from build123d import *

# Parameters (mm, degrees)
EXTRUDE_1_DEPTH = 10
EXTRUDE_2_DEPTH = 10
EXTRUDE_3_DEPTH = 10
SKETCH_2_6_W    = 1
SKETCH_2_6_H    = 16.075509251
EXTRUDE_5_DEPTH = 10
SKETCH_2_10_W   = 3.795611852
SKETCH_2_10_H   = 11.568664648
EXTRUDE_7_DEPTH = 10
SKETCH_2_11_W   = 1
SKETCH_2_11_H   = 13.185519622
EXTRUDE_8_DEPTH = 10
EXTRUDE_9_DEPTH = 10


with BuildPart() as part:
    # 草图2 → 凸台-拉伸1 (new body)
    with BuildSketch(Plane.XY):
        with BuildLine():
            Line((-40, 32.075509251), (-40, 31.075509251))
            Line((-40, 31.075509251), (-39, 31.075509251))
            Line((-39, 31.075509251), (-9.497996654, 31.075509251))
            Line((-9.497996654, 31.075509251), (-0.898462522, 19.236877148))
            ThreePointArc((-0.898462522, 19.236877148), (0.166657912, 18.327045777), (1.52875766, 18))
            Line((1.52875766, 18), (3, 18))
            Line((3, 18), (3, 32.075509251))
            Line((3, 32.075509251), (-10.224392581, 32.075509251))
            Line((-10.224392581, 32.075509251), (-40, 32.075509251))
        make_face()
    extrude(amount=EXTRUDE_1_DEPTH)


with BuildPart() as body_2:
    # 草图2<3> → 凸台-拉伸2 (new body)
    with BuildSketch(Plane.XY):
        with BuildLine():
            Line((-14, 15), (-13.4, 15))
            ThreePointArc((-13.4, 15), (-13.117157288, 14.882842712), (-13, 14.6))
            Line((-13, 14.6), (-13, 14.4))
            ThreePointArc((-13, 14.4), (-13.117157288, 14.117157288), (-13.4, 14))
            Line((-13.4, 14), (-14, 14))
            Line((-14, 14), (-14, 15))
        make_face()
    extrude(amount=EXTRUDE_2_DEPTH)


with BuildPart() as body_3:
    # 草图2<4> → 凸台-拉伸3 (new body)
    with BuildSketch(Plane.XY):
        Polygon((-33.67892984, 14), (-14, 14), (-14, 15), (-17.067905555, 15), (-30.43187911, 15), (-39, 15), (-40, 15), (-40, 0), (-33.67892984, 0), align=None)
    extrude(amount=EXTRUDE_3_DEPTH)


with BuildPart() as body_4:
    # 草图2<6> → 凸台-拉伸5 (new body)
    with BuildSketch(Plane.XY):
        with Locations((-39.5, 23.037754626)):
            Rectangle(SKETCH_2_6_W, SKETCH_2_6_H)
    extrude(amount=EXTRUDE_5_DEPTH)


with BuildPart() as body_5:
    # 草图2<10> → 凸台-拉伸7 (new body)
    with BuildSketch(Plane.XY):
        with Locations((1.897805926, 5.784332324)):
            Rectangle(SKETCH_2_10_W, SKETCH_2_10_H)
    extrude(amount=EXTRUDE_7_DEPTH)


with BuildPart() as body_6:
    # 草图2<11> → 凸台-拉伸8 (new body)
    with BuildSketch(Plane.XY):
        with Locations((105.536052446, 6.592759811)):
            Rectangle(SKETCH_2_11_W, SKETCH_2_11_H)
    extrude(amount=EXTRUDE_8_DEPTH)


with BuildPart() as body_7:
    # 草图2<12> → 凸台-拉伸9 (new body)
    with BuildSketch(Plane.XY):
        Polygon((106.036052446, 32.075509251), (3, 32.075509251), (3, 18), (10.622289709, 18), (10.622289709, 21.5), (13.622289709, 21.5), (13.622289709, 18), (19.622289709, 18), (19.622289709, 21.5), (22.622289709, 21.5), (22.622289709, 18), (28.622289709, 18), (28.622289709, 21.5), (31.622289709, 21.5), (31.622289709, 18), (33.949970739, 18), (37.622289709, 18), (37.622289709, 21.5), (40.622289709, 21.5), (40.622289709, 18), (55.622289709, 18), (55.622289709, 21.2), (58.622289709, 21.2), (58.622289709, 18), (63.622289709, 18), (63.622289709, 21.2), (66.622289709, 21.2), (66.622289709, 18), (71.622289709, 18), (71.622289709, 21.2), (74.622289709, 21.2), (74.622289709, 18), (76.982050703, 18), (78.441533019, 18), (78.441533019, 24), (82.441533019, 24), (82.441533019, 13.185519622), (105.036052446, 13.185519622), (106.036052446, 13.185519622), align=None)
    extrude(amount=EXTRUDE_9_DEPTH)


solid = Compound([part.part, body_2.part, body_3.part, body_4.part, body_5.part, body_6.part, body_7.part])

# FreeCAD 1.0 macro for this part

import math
import FreeCAD as App
import Part
import Sketcher

V = App.Vector


def add_polygon(sketch, points):
    """Adds a closed chain of lines whose ends are joined by coincident constraints."""
    first, n = sketch.GeometryCount, len(points)
    for a, b in zip(points, points[1:] + points[:1]):
        sketch.addGeometry(Part.LineSegment(App.Vector(*a, 0), App.Vector(*b, 0)), False)
    for i in range(n):
        sketch.addConstraint(Sketcher.Constraint("Coincident", first + i, 2, first + (i + 1) % n, 1))

doc = App.newDocument("Part")
params = doc.addObject("Spreadsheet::Sheet", "Params")
for row, (alias, value) in enumerate([
    ("sketch1_radius", "3 mm"),
    ("sketch1_width", "43 mm"),
    ("sketch1_height", "1 mm"),
    ("pad1_length", "10 mm"),
    ("sketch2_radius", "0.4 mm"),
    ("sketch2_height", "1 mm"),
    ("sketch2_width", "0.6 mm"),
    ("pad2_length", "10 mm"),
    ("sketch3_width", "26 mm"),
    ("sketch3_height", "1 mm"),
    ("sketch3_height2", "15 mm"),
    ("pad3_length", "10 mm"),
    ("sketch4_width", "1 mm"),
    ("pad4_length", "10 mm"),
    ("pad5_length", "10 mm"),
    ("sketch6_width", "1 mm"),
    ("pad6_length", "10 mm"),
    ("sketch7_width", "3 mm"),
    ("sketch7_width2", "6 mm"),
    ("sketch7_width3", "15 mm"),
    ("sketch7_width4", "5 mm"),
    ("sketch7_width5", "4 mm"),
    ("pad7_length", "10 mm"),
], start=1):
    params.set(f"A{row}", alias)
    params.set(f"B{row}", "=" + value)
    params.setAlias(f"B{row}", alias)

body = doc.addObject("PartDesign::Body", "Body")

# Sketch on XY plane
sketch1 = body.newObject("Sketcher::SketchObject", "Sketch")
sketch1.AttachmentSupport = (doc.getObject("XY_Plane"), [""])
sketch1.MapMode = "FlatFace"
sketch1.addGeometry([
    Part.LineSegment(V(-40, 32.1, 0), V(-40, 31.1, 0)),  # 0
    Part.LineSegment(V(-40, 31.1, 0), V(-9.5, 31.1, 0)),  # 1
    Part.LineSegment(V(-9.5, 31.1, 0), V(-0.9, 19.2, 0)),  # 2
    Part.ArcOfCircle(Part.Circle(V(1.5, 21, 0), V(0, 0, 1), 3), math.radians(-144), math.radians(-90)),  # 3
    Part.LineSegment(V(1.5, 18, 0), V(3, 18, 0)),  # 4
    Part.LineSegment(V(3, 18, 0), V(3, 32.1, 0)),  # 5
    Part.LineSegment(V(3, 32.1, 0), V(-40, 32.1, 0)),  # 6
], False)
sketch1.addConstraint([
    Sketcher.Constraint("Coincident", 0, 2, 1, 1),
    Sketcher.Constraint("Coincident", 1, 2, 2, 1),
    Sketcher.Constraint("Tangent", 2, 2, 3, 1),
    Sketcher.Constraint("Tangent", 3, 2, 4, 1),
    Sketcher.Constraint("Coincident", 4, 2, 5, 1),
    Sketcher.Constraint("Coincident", 5, 2, 6, 1),
    Sketcher.Constraint("Coincident", 6, 2, 0, 1),
    Sketcher.Constraint("Vertical", 0),
    Sketcher.Constraint("Horizontal", 1),
    Sketcher.Constraint("Horizontal", 4),
    Sketcher.Constraint("Vertical", 5),
    Sketcher.Constraint("Horizontal", 6),
    Sketcher.Constraint("Radius", 3, 3.0),
    Sketcher.Constraint("DistanceX", 6, 2, 6, 1, 43.0),
    Sketcher.Constraint("DistanceY", 0, 2, 0, 1, 1.0),
    Sketcher.Constraint("DistanceY", -1, 1, 3, 3, 21.0),
    Sketcher.Constraint("DistanceX", 0, 2, -1, 1, 40.0),
    Sketcher.Constraint("DistanceY", 5, 1, 5, 2, 14.075509),
    Sketcher.Constraint("DistanceX", 1, 1, 1, 2, 30.502003),
    Sketcher.Constraint("DistanceX", 4, 1, 4, 2, 1.471242),
])
sketch1.setExpression("Constraints[12]", "Params.sketch1_radius")
sketch1.setExpression("Constraints[13]", "Params.sketch1_width")
sketch1.setExpression("Constraints[14]", "Params.sketch1_height")
pad1 = body.newObject("PartDesign::Pad", "Pad")
pad1.Profile = sketch1
pad1.setExpression("Length", "Params.pad1_length")
body2 = doc.addObject("PartDesign::Body", "Body001")

# Sketch on XY plane
sketch2 = body2.newObject("Sketcher::SketchObject", "Sketch001")
sketch2.AttachmentSupport = (doc.getObject("XY_Plane001"), [""])
sketch2.MapMode = "FlatFace"
sketch2.addGeometry([
    Part.LineSegment(V(-13.4, 15, 0), V(-14, 15, 0)),  # 0
    Part.LineSegment(V(-14, 15, 0), V(-14, 14, 0)),  # 1
    Part.LineSegment(V(-14, 14, 0), V(-13.4, 14, 0)),  # 2
    Part.ArcOfCircle(Part.Circle(V(-13.4, 14.4, 0), V(0, 0, 1), 0.4), math.radians(-90), math.radians(0)),  # 3
    Part.LineSegment(V(-13, 14.4, 0), V(-13, 14.6, 0)),  # 4
    Part.ArcOfCircle(Part.Circle(V(-13.4, 14.6, 0), V(0, 0, 1), 0.4), math.radians(0), math.radians(90)),  # 5
], False)
sketch2.addConstraint([
    Sketcher.Constraint("Coincident", 0, 2, 1, 1),
    Sketcher.Constraint("Coincident", 1, 2, 2, 1),
    Sketcher.Constraint("Tangent", 2, 2, 3, 1),
    Sketcher.Constraint("Tangent", 3, 2, 4, 1),
    Sketcher.Constraint("Tangent", 4, 2, 5, 1),
    Sketcher.Constraint("Tangent", 5, 2, 0, 1),
    Sketcher.Constraint("Horizontal", 0),
    Sketcher.Constraint("Vertical", 1),
    Sketcher.Constraint("Horizontal", 2),
    Sketcher.Constraint("Vertical", 4),
    Sketcher.Constraint("Equal", 3, 5),
    Sketcher.Constraint("Radius", 3, 0.4),
    Sketcher.Constraint("DistanceY", 1, 2, 1, 1, 1.0),
    Sketcher.Constraint("DistanceX", 0, 2, 0, 1, 0.6),
    Sketcher.Constraint("DistanceX", 0, 2, -1, 1, 14.0),
    Sketcher.Constraint("DistanceY", -1, 1, 0, 2, 15.0),
])
sketch2.setExpression("Constraints[11]", "Params.sketch2_radius")
sketch2.setExpression("Constraints[12]", "Params.sketch2_height")
sketch2.setExpression("Constraints[13]", "Params.sketch2_width")
pad2 = body2.newObject("PartDesign::Pad", "Pad001")
pad2.Profile = sketch2
pad2.setExpression("Length", "Params.pad2_length")
body3 = doc.addObject("PartDesign::Body", "Body002")

# Sketch on XY plane
sketch3 = body3.newObject("Sketcher::SketchObject", "Sketch002")
sketch3.AttachmentSupport = (doc.getObject("XY_Plane002"), [""])
sketch3.MapMode = "FlatFace"
add_polygon(sketch3, [(-33.7, 14), (-14, 14), (-14, 15), (-40, 15), (-40, 0), (-33.7, 0)])  # lines 0-5
sketch3.addConstraint([
    Sketcher.Constraint("Horizontal", 0),
    Sketcher.Constraint("Vertical", 1),
    Sketcher.Constraint("Horizontal", 2),
    Sketcher.Constraint("Vertical", 3),
    Sketcher.Constraint("Horizontal", 4),
    Sketcher.Constraint("Vertical", 5),
    Sketcher.Constraint("PointOnObject", 3, 2, -1),
    Sketcher.Constraint("DistanceX", 2, 2, 2, 1, 26.0),
    Sketcher.Constraint("DistanceY", 1, 1, 1, 2, 1.0),
    Sketcher.Constraint("DistanceY", 3, 2, 3, 1, 15.0),
    Sketcher.Constraint("DistanceX", 0, 2, -1, 1, 14.0),
    Sketcher.Constraint("DistanceX", 0, 1, 0, 2, 19.67893),
])
sketch3.setExpression("Constraints[13]", "Params.sketch3_width")
sketch3.setExpression("Constraints[14]", "Params.sketch3_height")
sketch3.setExpression("Constraints[15]", "Params.sketch3_height2")
pad3 = body3.newObject("PartDesign::Pad", "Pad002")
pad3.Profile = sketch3
pad3.setExpression("Length", "Params.pad3_length")
body4 = doc.addObject("PartDesign::Body", "Body003")

# Sketch on XY plane
sketch4 = body4.newObject("Sketcher::SketchObject", "Sketch003")
sketch4.AttachmentSupport = (doc.getObject("XY_Plane003"), [""])
sketch4.MapMode = "FlatFace"
add_polygon(sketch4, [(-40, 31.1), (-40, 15), (-39, 15), (-39, 31.1)])  # lines 0-3
sketch4.addConstraint([
    Sketcher.Constraint("Vertical", 0),
    Sketcher.Constraint("Horizontal", 1),
    Sketcher.Constraint("Vertical", 2),
    Sketcher.Constraint("Horizontal", 3),
    Sketcher.Constraint("DistanceX", 1, 1, 1, 2, 1.0),
    Sketcher.Constraint("DistanceX", 0, 2, -1, 1, 40.0),
    Sketcher.Constraint("DistanceY", -1, 1, 0, 2, 15.0),
    Sketcher.Constraint("DistanceY", 0, 2, 0, 1, 16.075509),
])
sketch4.setExpression("Constraints[8]", "Params.sketch4_width")
pad4 = body4.newObject("PartDesign::Pad", "Pad003")
pad4.Profile = sketch4
pad4.setExpression("Length", "Params.pad4_length")
body5 = doc.addObject("PartDesign::Body", "Body004")

# Sketch on XY plane
sketch5 = body5.newObject("Sketcher::SketchObject", "Sketch004")
sketch5.AttachmentSupport = (doc.getObject("XY_Plane004"), [""])
sketch5.MapMode = "FlatFace"
add_polygon(sketch5, [(0, 11.6), (0, 0), (3.8, 0), (3.8, 11.6)])  # lines 0-3
sketch5.addConstraint([
    Sketcher.Constraint("Vertical", 0),
    Sketcher.Constraint("Horizontal", 1),
    Sketcher.Constraint("Vertical", 2),
    Sketcher.Constraint("Horizontal", 3),
    Sketcher.Constraint("Coincident", 0, 2, -1, 1),
    Sketcher.Constraint("DistanceX", 1, 1, 1, 2, 3.795612),
    Sketcher.Constraint("DistanceY", 0, 2, 0, 1, 11.568665),
])
pad5 = body5.newObject("PartDesign::Pad", "Pad004")
pad5.Profile = sketch5
pad5.setExpression("Length", "Params.pad5_length")
body6 = doc.addObject("PartDesign::Body", "Body005")

# Sketch on XY plane
sketch6 = body6.newObject("Sketcher::SketchObject", "Sketch005")
sketch6.AttachmentSupport = (doc.getObject("XY_Plane005"), [""])
sketch6.MapMode = "FlatFace"
add_polygon(sketch6, [(105, 13.2), (105, 0), (106, 0), (106, 13.2)])  # lines 0-3
sketch6.addConstraint([
    Sketcher.Constraint("Vertical", 0),
    Sketcher.Constraint("Horizontal", 1),
    Sketcher.Constraint("Vertical", 2),
    Sketcher.Constraint("Horizontal", 3),
    Sketcher.Constraint("PointOnObject", 0, 2, -1),
    Sketcher.Constraint("DistanceX", 1, 1, 1, 2, 1.0),
    Sketcher.Constraint("DistanceY", 0, 2, 0, 1, 13.18552),
    Sketcher.Constraint("DistanceX", -1, 1, 0, 2, 105.036052),
])
sketch6.setExpression("Constraints[9]", "Params.sketch6_width")
pad6 = body6.newObject("PartDesign::Pad", "Pad005")
pad6.Profile = sketch6
pad6.setExpression("Length", "Params.pad6_length")
body7 = doc.addObject("PartDesign::Body", "Body006")

# Sketch on XY plane
sketch7 = body7.newObject("Sketcher::SketchObject", "Sketch006")
sketch7.AttachmentSupport = (doc.getObject("XY_Plane006"), [""])
sketch7.MapMode = "FlatFace"
add_polygon(sketch7, [(106, 32.1), (3, 32.1), (3, 18), (10.6, 18), (10.6, 21.5), (13.6, 21.5), (13.6, 18), (19.6, 18), (19.6, 21.5), (22.6, 21.5), (22.6, 18), (28.6, 18), (28.6, 21.5), (31.6, 21.5), (31.6, 18), (37.6, 18), (37.6, 21.5), (40.6, 21.5), (40.6, 18), (55.6, 18), (55.6, 21.2), (58.6, 21.2), (58.6, 18), (63.6, 18), (63.6, 21.2), (66.6, 21.2), (66.6, 18), (71.6, 18), (71.6, 21.2), (74.6, 21.2), (74.6, 18), (78.4, 18), (78.4, 24), (82.4, 24), (82.4, 13.2), (106, 13.2)])  # lines 0-35
sketch7.addConstraint([
    Sketcher.Constraint("Horizontal", 0),
    Sketcher.Constraint("Vertical", 1),
    Sketcher.Constraint("Horizontal", 2),
    Sketcher.Constraint("Vertical", 3),
    Sketcher.Constraint("Horizontal", 4),
    Sketcher.Constraint("Vertical", 5),
    Sketcher.Constraint("Horizontal", 6),
    Sketcher.Constraint("Vertical", 7),
    Sketcher.Constraint("Horizontal", 8),
    Sketcher.Constraint("Vertical", 9),
    Sketcher.Constraint("Horizontal", 10),
    Sketcher.Constraint("Vertical", 11),
    Sketcher.Constraint("Horizontal", 12),
    Sketcher.Constraint("Vertical", 13),
    Sketcher.Constraint("Horizontal", 14),
    Sketcher.Constraint("Vertical", 15),
    Sketcher.Constraint("Horizontal", 16),
    Sketcher.Constraint("Vertical", 17),
    Sketcher.Constraint("Horizontal", 18),
    Sketcher.Constraint("Vertical", 19),
    Sketcher.Constraint("Horizontal", 20),
    Sketcher.Constraint("Vertical", 21),
    Sketcher.Constraint("Horizontal", 22),
    Sketcher.Constraint("Vertical", 23),
    Sketcher.Constraint("Horizontal", 24),
    Sketcher.Constraint("Vertical", 25),
    Sketcher.Constraint("Horizontal", 26),
    Sketcher.Constraint("Vertical", 27),
    Sketcher.Constraint("Horizontal", 28),
    Sketcher.Constraint("Vertical", 29),
    Sketcher.Constraint("Horizontal", 30),
    Sketcher.Constraint("Vertical", 31),
    Sketcher.Constraint("Horizontal", 32),
    Sketcher.Constraint("Vertical", 33),
    Sketcher.Constraint("Horizontal", 34),
    Sketcher.Constraint("Vertical", 35),
    Sketcher.Constraint("Horizontal", 2, 2, 5, 2),
    Sketcher.Constraint("Horizontal", 4, 2, 7, 2),
    Sketcher.Constraint("Horizontal", 6, 2, 9, 2),
    Sketcher.Constraint("Horizontal", 8, 2, 11, 2),
    Sketcher.Constraint("Horizontal", 10, 2, 13, 2),
    Sketcher.Constraint("Horizontal", 12, 2, 15, 2),
    Sketcher.Constraint("Horizontal", 14, 2, 17, 2),
    Sketcher.Constraint("Horizontal", 18, 2, 21, 2),
    Sketcher.Constraint("Horizontal", 20, 2, 23, 2),
    Sketcher.Constraint("Horizontal", 22, 2, 25, 2),
    Sketcher.Constraint("Horizontal", 24, 2, 27, 2),
    Sketcher.Constraint("Horizontal", 26, 2, 29, 2),
    Sketcher.Constraint("Equal", 4, 8),
    Sketcher.Constraint("Equal", 6, 10),
    Sketcher.Constraint("Equal", 8, 12),
    Sketcher.Constraint("Equal", 10, 14),
    Sketcher.Constraint("Equal", 12, 16),
    Sketcher.Constraint("Equal", 16, 20),
    Sketcher.Constraint("Equal", 20, 24),
    Sketcher.Constraint("Equal", 22, 26),
    Sketcher.Constraint("Equal", 24, 28),
    Sketcher.Constraint("Equal", 14, 31),
    Sketcher.Constraint("DistanceX", 4, 1, 4, 2, 3.0),
    Sketcher.Constraint("DistanceX", 6, 1, 6, 2, 6.0),
    Sketcher.Constraint("DistanceX", 18, 1, 18, 2, 15.0),
    Sketcher.Constraint("DistanceX", 22, 1, 22, 2, 5.0),
    Sketcher.Constraint("DistanceX", 32, 1, 32, 2, 4.0),
    Sketcher.Constraint("DistanceY", 3, 1, 3, 2, 3.5),
    Sketcher.Constraint("DistanceY", 19, 1, 19, 2, 3.2),
    Sketcher.Constraint("DistanceX", -1, 1, 0, 2, 3.0),
    Sketcher.Constraint("DistanceY", -1, 1, 1, 2, 18.0),
    Sketcher.Constraint("DistanceX", 2, 1, 2, 2, 7.62229),
    Sketcher.Constraint("DistanceX", 34, 1, 34, 2, 23.594519),
    Sketcher.Constraint("DistanceY", 1, 2, 1, 1, 14.075509),
    Sketcher.Constraint("DistanceY", 33, 2, 33, 1, 10.81448),
    Sketcher.Constraint("DistanceX", 0, 2, 0, 1, 103.036052),
])
sketch7.setExpression("Constraints[94]", "Params.sketch7_width")
sketch7.setExpression("Constraints[95]", "Params.sketch7_width2")
sketch7.setExpression("Constraints[96]", "Params.sketch7_width3")
sketch7.setExpression("Constraints[97]", "Params.sketch7_width4")
sketch7.setExpression("Constraints[98]", "Params.sketch7_width5")
pad7 = body7.newObject("PartDesign::Pad", "Pad006")
pad7.Profile = sketch7
pad7.setExpression("Length", "Params.pad7_length")

doc.recompute()
